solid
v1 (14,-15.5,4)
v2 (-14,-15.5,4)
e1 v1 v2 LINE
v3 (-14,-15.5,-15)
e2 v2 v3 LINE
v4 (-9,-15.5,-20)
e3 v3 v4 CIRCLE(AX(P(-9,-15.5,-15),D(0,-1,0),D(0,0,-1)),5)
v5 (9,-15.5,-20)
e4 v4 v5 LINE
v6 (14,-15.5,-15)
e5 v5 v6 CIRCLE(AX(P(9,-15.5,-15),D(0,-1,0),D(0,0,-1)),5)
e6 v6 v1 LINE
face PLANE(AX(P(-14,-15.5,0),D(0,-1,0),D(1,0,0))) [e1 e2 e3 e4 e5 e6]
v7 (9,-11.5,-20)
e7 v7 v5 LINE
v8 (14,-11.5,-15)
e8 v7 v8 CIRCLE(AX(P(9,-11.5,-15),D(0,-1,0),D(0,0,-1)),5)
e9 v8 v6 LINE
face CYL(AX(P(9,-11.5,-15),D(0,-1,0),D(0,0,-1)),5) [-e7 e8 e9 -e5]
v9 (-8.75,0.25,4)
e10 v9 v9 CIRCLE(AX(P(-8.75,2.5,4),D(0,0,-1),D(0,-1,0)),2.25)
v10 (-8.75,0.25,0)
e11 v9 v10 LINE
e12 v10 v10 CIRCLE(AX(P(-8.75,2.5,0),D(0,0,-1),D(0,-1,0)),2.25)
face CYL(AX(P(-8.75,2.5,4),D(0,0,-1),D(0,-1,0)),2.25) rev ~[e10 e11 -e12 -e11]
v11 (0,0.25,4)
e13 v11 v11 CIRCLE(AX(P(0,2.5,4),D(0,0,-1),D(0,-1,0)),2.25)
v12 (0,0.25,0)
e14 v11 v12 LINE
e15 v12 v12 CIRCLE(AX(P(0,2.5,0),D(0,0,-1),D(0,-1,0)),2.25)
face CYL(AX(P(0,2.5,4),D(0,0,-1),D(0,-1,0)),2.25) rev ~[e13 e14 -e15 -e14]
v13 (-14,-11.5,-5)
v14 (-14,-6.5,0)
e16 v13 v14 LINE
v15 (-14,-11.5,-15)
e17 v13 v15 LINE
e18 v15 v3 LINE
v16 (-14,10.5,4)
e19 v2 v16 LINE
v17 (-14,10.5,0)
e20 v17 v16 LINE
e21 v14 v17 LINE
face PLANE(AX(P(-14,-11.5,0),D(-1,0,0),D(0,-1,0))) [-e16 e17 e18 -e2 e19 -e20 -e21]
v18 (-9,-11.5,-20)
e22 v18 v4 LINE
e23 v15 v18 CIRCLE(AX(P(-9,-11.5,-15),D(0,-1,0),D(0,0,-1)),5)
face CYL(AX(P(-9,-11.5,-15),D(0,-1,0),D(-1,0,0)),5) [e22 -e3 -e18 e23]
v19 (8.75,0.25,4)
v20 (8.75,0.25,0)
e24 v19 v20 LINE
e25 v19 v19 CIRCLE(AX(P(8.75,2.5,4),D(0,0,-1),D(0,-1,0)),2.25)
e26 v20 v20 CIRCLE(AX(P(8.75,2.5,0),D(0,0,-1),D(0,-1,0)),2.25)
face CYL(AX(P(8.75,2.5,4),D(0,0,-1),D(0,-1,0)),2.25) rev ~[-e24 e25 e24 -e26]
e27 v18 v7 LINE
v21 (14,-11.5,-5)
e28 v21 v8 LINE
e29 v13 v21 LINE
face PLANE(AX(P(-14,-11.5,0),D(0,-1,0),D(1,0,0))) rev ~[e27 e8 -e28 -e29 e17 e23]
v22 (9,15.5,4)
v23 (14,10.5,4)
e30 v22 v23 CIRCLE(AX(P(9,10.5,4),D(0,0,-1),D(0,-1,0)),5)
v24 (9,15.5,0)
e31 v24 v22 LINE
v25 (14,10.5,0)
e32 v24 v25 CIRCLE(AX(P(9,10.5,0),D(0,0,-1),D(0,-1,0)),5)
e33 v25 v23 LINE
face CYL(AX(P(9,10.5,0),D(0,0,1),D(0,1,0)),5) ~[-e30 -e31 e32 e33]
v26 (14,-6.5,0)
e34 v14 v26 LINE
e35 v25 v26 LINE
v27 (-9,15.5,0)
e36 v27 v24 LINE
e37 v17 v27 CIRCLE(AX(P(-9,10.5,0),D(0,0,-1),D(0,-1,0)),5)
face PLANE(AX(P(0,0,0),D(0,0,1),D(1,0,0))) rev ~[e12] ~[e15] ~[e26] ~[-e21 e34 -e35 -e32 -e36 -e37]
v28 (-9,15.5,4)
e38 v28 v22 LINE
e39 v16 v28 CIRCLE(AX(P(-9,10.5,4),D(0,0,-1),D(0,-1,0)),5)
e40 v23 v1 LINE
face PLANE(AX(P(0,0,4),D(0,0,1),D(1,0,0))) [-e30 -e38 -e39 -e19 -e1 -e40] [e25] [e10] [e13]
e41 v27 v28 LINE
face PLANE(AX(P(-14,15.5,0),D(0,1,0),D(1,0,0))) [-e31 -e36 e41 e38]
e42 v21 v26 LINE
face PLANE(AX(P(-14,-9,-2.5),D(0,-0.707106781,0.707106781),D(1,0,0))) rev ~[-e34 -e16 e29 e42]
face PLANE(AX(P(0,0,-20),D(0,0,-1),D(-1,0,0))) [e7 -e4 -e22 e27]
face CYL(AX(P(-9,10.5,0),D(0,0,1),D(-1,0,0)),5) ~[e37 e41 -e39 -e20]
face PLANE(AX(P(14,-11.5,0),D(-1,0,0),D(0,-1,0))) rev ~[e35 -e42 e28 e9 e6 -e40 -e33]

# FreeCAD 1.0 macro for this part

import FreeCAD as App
import Part
import Sketcher

V = App.Vector


def edges_at(feature, points):
    """Names of the edges that pass closest to the given points."""
    edges = feature.Shape.Edges
    near = lambda p: min(range(len(edges)), key=lambda i: edges[i].distToShape(Part.Vertex(*p))[0])
    return sorted({f"Edge{near(p) + 1}" for p in points})


def add_polygon(sketch, points):
    """Adds a closed chain of lines whose ends are joined by coincident constraints."""
    first, n = sketch.GeometryCount, len(points)
    for a, b in zip(points, points[1:] + points[:1]):
        sketch.addGeometry(Part.LineSegment(App.Vector(*a, 0), App.Vector(*b, 0)), False)
    for i in range(n):
        sketch.addConstraint(Sketcher.Constraint("Coincident", first + i, 2, first + (i + 1) % n, 1))

doc = App.newDocument("Part")
body = doc.addObject("PartDesign::Body", "Body")

sketch1 = doc.addObject("Sketcher::SketchObject", "Sketch")
body.addObject(sketch1)
sketch1.AttachmentSupport = (doc.XY_Plane, [""])
sketch1.MapMode = "FlatFace"
add_polygon(sketch1, [(14, 16), (-14, 16), (-14, -16), (14, -16)])
sketch1.addConstraint(Sketcher.Constraint("Horizontal", 0))
sketch1.addConstraint(Sketcher.Constraint("Vertical", 1))
sketch1.addConstraint(Sketcher.Constraint("Horizontal", 2))
sketch1.addConstraint(Sketcher.Constraint("Vertical", 3))
sketch1.addConstraint(Sketcher.Constraint("Symmetric", 0, 2, 2, 2, -1, 1))
sketch1.addConstraint(Sketcher.Constraint("DistanceX", 0, 2, 0, 1, 28.0))
sketch1.addConstraint(Sketcher.Constraint("DistanceY", 1, 2, 1, 1, 31.0))
pad1 = doc.addObject("PartDesign::Pad", "Pad")
body.addObject(pad1)
pad1.Profile = sketch1
pad1.Length = 4

sketch2 = doc.addObject("Sketcher::SketchObject", "Sketch001")
body.addObject(sketch2)
sketch2.AttachmentSupport = (doc.XY_Plane, [""])
sketch2.MapMode = "FlatFace"
sketch2.AttachmentOffset = App.Placement(V(0, 0, 4), App.Rotation())
sketch2.addGeometry(Part.Circle(V(0, 2.5, 0), V(0, 0, 1), 2.2), False)
sketch2.addGeometry(Part.Circle(V(-8.8, 2.5, 0), V(0, 0, 1), 2.2), False)
sketch2.addGeometry(Part.Circle(V(8.8, 2.5, 0), V(0, 0, 1), 2.2), False)
sketch2.addConstraint(Sketcher.Constraint("Equal", 0, 1))
sketch2.addConstraint(Sketcher.Constraint("Equal", 1, 2))
sketch2.addConstraint(Sketcher.Constraint("Symmetric", 1, 3, 2, 3, -2))
sketch2.addConstraint(Sketcher.Constraint("PointOnObject", 0, 3, -2))
sketch2.addConstraint(Sketcher.Constraint("Horizontal", 0, 3, 1, 3))
sketch2.addConstraint(Sketcher.Constraint("Diameter", 0, 4.5))
sketch2.addConstraint(Sketcher.Constraint("DistanceY", -1, 1, 0, 3, 2.5))
sketch2.addConstraint(Sketcher.Constraint("DistanceX", 1, 3, 2, 3, 17.5))
doc.recompute()
hole = doc.addObject("PartDesign::Hole", "Hole")
body.addObject(hole)
hole.Profile = sketch2
hole.ThreadType = "None"
hole.Diameter = 4.5
hole.DepthType = "ThroughAll"

sketch3 = doc.addObject("Sketcher::SketchObject", "Sketch002")
body.addObject(sketch3)
sketch3.AttachmentSupport = (doc.XY_Plane, [""])
sketch3.MapMode = "FlatFace"
add_polygon(sketch3, [(14, -15.5), (-14, -15.5), (-14, -11.5), (14, -11.5)])
sketch3.addConstraint(Sketcher.Constraint("Horizontal", 0))
sketch3.addConstraint(Sketcher.Constraint("Vertical", 1))
sketch3.addConstraint(Sketcher.Constraint("Horizontal", 2))
sketch3.addConstraint(Sketcher.Constraint("Vertical", 3))
sketch3.addConstraint(Sketcher.Constraint("DistanceY", 1, 1, 1, 2, 4.0))
sketch3.addConstraint(Sketcher.Constraint("DistanceX", 0, 2, 0, 1, 28.0))
sketch3.addConstraint(Sketcher.Constraint("DistanceX", 0, 2, -1, 1, 14.0))
sketch3.addConstraint(Sketcher.Constraint("DistanceY", 0, 2, -1, 1, 15.5))
pad2 = doc.addObject("PartDesign::Pad", "Pad001")
body.addObject(pad2)
pad2.Profile = sketch3
pad2.Length = 20
pad2.Reversed = True
doc.recompute()

chamfer = doc.addObject("PartDesign::Chamfer", "Chamfer")
body.addObject(chamfer)
chamfer.Base = (pad2, edges_at(pad2, [(0, -11.5, 0)]))
chamfer.Size = 5
doc.recompute()

fillet = doc.addObject("PartDesign::Fillet", "Fillet")
body.addObject(fillet)
fillet.Base = (chamfer, edges_at(chamfer, [
    (14, 15.5, 2),
    (-14, 15.5, 2),
    (14, -13.5, -20),
    (-14, -13.5, -20),
]))
fillet.Radius = 5

doc.recompute()
